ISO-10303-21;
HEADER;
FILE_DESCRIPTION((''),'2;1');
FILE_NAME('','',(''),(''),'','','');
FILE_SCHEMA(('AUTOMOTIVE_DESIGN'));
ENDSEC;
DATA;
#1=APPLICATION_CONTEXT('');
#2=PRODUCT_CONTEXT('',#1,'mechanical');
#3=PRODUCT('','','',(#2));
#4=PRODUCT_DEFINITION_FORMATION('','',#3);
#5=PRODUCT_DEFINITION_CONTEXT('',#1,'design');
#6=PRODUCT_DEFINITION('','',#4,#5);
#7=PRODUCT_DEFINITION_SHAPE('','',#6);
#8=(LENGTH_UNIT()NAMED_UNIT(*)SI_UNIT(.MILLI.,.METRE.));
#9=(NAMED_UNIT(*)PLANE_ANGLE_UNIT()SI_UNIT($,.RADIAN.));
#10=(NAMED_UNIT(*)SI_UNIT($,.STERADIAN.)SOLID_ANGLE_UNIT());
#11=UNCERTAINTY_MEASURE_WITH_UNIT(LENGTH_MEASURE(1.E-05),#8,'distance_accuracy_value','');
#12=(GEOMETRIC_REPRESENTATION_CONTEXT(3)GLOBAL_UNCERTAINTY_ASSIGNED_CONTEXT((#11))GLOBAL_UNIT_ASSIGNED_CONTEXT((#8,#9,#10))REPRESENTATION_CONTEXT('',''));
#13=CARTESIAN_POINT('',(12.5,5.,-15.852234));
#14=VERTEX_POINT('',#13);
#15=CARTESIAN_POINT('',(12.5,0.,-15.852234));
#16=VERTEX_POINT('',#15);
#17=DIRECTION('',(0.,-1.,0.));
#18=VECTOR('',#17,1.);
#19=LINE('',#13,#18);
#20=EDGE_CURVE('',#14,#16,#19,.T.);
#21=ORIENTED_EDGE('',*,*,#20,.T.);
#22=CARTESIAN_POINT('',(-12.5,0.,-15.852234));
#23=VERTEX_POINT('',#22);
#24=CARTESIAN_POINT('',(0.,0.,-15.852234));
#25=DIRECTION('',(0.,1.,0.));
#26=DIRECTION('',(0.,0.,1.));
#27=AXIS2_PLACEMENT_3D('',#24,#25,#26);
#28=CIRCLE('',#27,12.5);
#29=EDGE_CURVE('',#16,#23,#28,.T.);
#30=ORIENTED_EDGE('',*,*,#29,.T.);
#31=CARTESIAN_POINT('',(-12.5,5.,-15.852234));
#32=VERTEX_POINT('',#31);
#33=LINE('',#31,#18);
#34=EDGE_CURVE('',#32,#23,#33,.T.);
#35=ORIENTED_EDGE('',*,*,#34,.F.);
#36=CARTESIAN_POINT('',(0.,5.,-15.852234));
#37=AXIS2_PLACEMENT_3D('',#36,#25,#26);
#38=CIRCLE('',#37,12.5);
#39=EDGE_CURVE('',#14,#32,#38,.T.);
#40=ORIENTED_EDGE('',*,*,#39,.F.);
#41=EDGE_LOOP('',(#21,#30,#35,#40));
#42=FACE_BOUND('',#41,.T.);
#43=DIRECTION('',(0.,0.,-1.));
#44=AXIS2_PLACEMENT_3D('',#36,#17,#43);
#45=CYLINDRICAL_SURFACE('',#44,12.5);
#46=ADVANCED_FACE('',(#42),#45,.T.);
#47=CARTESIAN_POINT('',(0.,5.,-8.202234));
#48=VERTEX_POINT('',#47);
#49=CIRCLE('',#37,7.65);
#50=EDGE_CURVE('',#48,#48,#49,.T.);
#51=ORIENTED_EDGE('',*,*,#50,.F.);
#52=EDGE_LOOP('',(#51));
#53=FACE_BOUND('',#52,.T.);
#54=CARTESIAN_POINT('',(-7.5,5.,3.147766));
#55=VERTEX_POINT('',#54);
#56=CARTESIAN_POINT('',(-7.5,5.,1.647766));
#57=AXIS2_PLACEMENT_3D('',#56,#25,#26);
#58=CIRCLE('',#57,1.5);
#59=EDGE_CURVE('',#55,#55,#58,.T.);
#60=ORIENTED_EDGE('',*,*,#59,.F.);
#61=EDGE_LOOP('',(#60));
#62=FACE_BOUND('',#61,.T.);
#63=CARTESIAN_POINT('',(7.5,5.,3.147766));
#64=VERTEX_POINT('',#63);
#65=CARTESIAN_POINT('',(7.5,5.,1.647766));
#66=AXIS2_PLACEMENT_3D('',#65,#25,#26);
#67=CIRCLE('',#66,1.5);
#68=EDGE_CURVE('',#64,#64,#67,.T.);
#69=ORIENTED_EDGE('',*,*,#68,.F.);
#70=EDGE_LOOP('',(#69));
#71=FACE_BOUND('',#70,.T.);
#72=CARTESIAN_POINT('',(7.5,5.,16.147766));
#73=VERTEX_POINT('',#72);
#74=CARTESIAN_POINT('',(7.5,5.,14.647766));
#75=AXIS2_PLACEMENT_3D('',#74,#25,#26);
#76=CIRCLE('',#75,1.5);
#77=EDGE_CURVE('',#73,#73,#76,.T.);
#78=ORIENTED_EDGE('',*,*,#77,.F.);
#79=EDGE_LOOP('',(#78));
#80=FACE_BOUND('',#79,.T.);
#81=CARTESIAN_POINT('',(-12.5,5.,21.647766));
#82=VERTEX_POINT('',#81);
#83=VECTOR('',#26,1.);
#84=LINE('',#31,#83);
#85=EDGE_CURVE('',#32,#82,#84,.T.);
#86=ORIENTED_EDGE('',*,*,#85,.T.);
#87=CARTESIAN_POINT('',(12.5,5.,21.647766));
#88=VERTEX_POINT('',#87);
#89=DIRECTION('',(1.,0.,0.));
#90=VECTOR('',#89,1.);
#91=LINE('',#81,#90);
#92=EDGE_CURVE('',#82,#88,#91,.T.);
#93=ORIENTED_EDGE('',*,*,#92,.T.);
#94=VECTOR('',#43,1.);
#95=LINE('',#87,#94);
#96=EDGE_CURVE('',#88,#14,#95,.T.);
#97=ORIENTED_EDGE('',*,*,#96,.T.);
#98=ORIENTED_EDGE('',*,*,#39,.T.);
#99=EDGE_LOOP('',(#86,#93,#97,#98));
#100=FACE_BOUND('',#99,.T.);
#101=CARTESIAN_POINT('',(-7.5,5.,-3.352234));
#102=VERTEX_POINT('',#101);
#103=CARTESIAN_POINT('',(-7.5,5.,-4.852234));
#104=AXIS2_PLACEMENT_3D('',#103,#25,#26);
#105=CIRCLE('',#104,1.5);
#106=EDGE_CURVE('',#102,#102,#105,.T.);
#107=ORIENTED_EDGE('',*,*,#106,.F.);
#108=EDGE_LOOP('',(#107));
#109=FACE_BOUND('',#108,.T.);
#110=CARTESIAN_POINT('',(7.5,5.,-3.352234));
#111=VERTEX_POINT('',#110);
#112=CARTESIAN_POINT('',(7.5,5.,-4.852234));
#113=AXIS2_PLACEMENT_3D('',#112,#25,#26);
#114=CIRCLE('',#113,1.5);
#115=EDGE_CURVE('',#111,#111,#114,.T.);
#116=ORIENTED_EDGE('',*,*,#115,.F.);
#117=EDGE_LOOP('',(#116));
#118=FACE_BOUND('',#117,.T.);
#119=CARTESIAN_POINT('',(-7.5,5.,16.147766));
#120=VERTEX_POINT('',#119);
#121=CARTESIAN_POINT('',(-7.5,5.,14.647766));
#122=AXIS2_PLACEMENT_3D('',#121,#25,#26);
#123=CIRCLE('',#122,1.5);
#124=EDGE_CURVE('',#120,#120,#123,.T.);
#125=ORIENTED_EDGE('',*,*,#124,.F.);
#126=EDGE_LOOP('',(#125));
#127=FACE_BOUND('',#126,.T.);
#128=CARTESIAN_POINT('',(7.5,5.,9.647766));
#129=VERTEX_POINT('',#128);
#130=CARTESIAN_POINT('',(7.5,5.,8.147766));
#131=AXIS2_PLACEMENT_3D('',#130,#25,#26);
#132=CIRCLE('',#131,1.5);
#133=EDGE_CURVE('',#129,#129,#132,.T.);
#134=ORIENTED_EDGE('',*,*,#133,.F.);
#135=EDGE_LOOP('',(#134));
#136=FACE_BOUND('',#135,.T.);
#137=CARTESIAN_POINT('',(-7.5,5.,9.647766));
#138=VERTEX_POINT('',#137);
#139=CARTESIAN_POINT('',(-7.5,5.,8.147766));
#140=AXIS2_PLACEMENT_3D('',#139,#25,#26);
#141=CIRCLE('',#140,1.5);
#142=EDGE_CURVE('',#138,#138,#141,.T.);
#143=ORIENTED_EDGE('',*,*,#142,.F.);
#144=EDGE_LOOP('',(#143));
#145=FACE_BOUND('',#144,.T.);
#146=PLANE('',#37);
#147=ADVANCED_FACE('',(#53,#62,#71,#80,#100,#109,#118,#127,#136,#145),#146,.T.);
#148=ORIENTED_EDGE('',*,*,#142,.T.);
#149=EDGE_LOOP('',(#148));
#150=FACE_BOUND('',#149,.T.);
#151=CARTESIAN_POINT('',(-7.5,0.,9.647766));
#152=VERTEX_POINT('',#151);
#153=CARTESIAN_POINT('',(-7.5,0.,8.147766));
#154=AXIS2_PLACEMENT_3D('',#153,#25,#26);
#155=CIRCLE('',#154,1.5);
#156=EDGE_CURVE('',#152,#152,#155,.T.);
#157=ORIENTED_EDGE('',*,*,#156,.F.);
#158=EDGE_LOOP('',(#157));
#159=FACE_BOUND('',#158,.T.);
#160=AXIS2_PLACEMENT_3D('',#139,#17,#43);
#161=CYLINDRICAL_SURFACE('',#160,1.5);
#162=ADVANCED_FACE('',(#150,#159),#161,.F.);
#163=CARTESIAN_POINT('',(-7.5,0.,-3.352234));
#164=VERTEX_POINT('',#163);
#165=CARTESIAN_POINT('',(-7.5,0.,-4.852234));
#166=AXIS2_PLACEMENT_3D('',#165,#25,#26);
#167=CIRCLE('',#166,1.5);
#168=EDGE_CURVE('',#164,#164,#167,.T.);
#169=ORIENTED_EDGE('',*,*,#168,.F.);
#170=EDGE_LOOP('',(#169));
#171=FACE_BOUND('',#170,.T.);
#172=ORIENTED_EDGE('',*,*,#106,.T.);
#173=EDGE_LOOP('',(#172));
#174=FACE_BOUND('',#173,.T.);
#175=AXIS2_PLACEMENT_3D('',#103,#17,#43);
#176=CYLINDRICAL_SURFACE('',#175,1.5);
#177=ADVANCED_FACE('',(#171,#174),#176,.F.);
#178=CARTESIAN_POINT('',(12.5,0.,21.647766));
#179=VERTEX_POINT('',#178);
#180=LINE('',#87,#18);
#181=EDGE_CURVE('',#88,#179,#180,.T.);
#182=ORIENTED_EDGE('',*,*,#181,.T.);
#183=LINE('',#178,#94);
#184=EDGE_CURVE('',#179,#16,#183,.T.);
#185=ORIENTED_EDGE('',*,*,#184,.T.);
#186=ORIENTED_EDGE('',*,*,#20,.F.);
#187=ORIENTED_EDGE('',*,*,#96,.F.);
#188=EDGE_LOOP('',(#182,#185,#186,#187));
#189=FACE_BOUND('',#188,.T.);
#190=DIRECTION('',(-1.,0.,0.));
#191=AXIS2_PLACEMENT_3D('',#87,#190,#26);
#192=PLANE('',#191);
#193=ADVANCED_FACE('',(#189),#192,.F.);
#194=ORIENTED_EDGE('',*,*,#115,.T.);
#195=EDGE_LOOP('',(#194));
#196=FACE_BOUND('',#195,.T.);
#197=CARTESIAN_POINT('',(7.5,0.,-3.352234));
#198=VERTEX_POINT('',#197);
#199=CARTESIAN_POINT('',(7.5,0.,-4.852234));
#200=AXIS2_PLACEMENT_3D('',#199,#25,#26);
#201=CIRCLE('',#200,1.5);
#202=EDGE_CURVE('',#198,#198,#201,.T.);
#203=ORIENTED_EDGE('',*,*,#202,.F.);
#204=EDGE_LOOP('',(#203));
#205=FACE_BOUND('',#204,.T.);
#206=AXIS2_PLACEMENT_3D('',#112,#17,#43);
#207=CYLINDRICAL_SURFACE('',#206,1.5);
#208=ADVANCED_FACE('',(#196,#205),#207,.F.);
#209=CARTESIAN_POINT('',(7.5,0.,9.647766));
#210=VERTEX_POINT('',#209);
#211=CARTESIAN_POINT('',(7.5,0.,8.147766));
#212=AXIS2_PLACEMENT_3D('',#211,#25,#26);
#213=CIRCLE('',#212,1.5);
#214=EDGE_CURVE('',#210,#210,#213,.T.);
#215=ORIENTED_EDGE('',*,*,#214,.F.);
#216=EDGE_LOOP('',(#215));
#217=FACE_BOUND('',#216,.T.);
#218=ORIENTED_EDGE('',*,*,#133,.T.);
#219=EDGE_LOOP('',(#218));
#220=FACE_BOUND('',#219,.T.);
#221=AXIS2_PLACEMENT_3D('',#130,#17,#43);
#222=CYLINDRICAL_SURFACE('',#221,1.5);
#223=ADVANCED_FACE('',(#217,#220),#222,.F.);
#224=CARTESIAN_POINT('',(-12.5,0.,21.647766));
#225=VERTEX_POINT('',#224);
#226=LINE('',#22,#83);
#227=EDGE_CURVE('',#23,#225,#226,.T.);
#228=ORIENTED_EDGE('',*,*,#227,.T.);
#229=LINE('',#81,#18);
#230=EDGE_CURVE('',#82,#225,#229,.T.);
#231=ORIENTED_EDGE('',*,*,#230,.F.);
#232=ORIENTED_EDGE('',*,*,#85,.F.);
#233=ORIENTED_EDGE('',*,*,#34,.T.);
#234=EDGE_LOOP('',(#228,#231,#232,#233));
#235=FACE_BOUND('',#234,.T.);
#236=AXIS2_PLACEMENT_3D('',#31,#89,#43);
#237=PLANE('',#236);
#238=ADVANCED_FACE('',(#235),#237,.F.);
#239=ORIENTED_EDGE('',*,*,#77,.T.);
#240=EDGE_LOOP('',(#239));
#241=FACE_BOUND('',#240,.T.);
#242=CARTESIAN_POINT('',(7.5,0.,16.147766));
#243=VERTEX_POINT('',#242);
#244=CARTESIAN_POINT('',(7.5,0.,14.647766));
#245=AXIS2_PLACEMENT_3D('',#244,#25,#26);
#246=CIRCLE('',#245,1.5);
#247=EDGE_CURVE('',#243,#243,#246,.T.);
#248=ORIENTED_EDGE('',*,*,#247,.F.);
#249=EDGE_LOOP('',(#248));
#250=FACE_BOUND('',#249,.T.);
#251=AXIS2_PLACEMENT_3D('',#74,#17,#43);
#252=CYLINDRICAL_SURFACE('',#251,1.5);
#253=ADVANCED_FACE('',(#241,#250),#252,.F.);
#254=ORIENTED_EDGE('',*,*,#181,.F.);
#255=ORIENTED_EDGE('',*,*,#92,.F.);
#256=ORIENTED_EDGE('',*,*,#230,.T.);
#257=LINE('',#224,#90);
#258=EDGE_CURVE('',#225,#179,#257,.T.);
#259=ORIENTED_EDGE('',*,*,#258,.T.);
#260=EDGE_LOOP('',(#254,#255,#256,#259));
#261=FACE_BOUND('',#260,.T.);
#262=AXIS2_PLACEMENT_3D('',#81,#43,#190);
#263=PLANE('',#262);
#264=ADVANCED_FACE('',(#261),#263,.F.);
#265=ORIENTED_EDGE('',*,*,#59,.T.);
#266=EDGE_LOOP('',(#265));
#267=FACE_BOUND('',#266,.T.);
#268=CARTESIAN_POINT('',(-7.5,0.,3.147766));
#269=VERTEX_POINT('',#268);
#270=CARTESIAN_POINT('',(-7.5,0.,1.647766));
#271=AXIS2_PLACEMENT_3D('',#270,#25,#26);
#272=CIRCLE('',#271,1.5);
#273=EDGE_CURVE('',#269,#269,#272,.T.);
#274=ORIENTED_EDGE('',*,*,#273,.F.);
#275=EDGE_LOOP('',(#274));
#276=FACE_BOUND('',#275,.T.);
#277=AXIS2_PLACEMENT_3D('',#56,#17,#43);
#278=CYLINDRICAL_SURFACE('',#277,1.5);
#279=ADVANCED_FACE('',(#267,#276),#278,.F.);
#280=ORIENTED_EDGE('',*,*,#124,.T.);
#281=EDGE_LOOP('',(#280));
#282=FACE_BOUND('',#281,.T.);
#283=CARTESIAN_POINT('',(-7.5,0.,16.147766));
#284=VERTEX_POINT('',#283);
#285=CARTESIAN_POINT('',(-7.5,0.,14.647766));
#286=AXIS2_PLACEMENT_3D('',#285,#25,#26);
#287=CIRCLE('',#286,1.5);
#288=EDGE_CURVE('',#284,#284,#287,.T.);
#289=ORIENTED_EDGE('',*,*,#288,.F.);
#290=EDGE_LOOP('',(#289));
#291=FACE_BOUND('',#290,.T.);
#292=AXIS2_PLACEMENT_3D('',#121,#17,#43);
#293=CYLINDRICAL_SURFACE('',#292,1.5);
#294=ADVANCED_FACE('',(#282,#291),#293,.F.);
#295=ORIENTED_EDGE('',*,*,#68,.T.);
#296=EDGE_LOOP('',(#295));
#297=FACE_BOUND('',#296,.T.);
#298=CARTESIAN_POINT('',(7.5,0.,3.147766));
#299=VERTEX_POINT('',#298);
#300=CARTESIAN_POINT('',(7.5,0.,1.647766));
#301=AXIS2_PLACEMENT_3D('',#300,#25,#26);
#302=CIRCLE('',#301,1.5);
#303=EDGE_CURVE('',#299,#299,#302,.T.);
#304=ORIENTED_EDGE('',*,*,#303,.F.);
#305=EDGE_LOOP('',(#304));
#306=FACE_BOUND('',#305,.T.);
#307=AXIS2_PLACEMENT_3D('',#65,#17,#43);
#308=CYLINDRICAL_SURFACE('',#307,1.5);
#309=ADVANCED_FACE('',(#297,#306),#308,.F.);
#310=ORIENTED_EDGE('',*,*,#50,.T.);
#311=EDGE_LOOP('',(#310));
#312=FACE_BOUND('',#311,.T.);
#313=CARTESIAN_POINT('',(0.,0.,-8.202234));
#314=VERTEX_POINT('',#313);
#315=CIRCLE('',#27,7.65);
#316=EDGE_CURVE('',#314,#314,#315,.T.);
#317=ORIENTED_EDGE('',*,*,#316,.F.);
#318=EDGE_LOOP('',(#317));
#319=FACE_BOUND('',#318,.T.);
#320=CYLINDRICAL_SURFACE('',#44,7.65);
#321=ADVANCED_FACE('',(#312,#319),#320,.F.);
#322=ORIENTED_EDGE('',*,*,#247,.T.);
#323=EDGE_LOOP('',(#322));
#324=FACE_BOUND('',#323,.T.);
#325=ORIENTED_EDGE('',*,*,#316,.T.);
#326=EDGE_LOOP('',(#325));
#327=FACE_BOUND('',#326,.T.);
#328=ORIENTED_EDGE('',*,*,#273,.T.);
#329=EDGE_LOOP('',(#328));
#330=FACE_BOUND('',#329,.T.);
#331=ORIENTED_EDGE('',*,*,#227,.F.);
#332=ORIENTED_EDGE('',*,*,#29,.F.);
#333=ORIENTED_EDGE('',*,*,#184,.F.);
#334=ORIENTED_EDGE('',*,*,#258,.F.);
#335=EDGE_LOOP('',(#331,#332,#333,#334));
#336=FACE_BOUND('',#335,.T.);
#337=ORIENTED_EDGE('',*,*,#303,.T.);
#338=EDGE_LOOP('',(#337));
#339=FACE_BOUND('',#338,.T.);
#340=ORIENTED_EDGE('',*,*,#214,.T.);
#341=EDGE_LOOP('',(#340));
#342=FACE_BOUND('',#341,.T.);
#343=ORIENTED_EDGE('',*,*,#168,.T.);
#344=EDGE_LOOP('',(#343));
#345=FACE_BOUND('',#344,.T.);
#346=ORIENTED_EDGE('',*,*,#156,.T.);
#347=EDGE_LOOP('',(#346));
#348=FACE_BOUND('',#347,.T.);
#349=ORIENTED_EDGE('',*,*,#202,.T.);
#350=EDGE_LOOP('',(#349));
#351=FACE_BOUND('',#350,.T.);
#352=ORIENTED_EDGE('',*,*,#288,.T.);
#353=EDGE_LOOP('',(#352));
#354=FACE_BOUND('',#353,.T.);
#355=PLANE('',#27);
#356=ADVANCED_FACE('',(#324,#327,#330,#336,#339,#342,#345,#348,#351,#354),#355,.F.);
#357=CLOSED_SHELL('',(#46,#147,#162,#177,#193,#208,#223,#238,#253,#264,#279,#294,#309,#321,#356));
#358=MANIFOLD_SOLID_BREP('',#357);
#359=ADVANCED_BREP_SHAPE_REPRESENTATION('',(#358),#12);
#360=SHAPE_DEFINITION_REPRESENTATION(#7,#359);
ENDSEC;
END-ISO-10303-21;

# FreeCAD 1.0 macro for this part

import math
import FreeCAD as App
import Part
import Sketcher
Q = App.Units.Quantity

doc = App.newDocument("Part")
body = doc.addObject("PartDesign::Body", "Body")

sketch1 = body.newObject("Sketcher::SketchObject", "Sketch")
sketch1.AttachmentSupport = (doc.getObject("XZ_Plane"), [""])
sketch1.MapMode = "FlatFace"
sketch1.addGeometry([
    Part.LineSegment(App.Vector(-12.5, -15.9, 0), App.Vector(-12.5, 21.6, 0)),
    Part.LineSegment(App.Vector(-12.5, 21.6, 0), App.Vector(12.5, 21.6, 0)),
    Part.LineSegment(App.Vector(12.5, 21.6, 0), App.Vector(12.5, -15.9, 0)),
    Part.ArcOfCircle(Part.Circle(App.Vector(0, -15.9, 0), App.Vector(0, 0, 1), 12.5), math.radians(180), math.radians(360)),
    Part.Circle(App.Vector(-7.5, 14.6, 0), App.Vector(0, 0, 1), 1.5),
    Part.Circle(App.Vector(-7.5, 8.1, 0), App.Vector(0, 0, 1), 1.5),
    Part.Circle(App.Vector(-7.5, 1.6, 0), App.Vector(0, 0, 1), 1.5),
    Part.Circle(App.Vector(7.5, 14.6, 0), App.Vector(0, 0, 1), 1.5),
    Part.Circle(App.Vector(7.5, 8.1, 0), App.Vector(0, 0, 1), 1.5),
    Part.Circle(App.Vector(7.5, 1.6, 0), App.Vector(0, 0, 1), 1.5),
    Part.Circle(App.Vector(-7.5, -4.9, 0), App.Vector(0, 0, 1), 1.5),
    Part.Circle(App.Vector(7.5, -4.9, 0), App.Vector(0, 0, 1), 1.5),
    Part.Circle(App.Vector(0, -15.9, 0), App.Vector(0, 0, 1), 7.7),
], False)
sketch1.addConstraint([
    Sketcher.Constraint("Coincident", 0, 2, 1, 1),
    Sketcher.Constraint("Coincident", 1, 2, 2, 1),
    Sketcher.Constraint("Tangent", 2, 2, 3, 2),
    Sketcher.Constraint("Tangent", 3, 1, 0, 1),
    Sketcher.Constraint("Vertical", 0),
    Sketcher.Constraint("Horizontal", 1),
    Sketcher.Constraint("Vertical", 2),
    Sketcher.Constraint("Coincident", 12, 3, 3, 3),
    Sketcher.Constraint("Equal", 4, 5),
    Sketcher.Constraint("Equal", 5, 6),
    Sketcher.Constraint("Equal", 6, 7),
    Sketcher.Constraint("Equal", 7, 8),
    Sketcher.Constraint("Equal", 8, 9),
    Sketcher.Constraint("Equal", 9, 10),
    Sketcher.Constraint("Equal", 10, 11),
    Sketcher.Constraint("Symmetric", 4, 3, 7, 3, -2),
    Sketcher.Constraint("Symmetric", 5, 3, 8, 3, -2),
    Sketcher.Constraint("Symmetric", 6, 3, 9, 3, -2),
    Sketcher.Constraint("Symmetric", 10, 3, 11, 3, -2),
    Sketcher.Constraint("PointOnObject", 3, 3, -2),
    Sketcher.Constraint("Vertical", 4, 3, 5, 3),
    Sketcher.Constraint("Vertical", 5, 3, 6, 3),
    Sketcher.Constraint("Vertical", 6, 3, 10, 3),
    Sketcher.Constraint("Diameter", 4, Q("3 mm")),
    Sketcher.Constraint("Diameter", 12, Q("15.3 mm")),
    Sketcher.Constraint("Radius", 3, Q("12.5 mm")),
    Sketcher.Constraint("DistanceY", 0, 1, 0, 2, Q("37.5 mm")),
    Sketcher.Constraint("DistanceY", 3, 3, 5, 3, Q("24 mm")),
    Sketcher.Constraint("DistanceY", 6, 3, 4, 3, Q("13 mm")),
    Sketcher.Constraint("DistanceX", 4, 3, 7, 3, Q("15 mm")),
    Sketcher.Constraint("DistanceY", 10, 3, 5, 3, Q("13 mm")),
    Sketcher.Constraint("DistanceY", 4, 3, 0, 2, Q("7 mm")),
    Sketcher.Constraint("DistanceY", 3, 3, -1, 1, Q("15.852234 mm")),
])
pad1 = body.newObject("PartDesign::Pad", "Pad")
pad1.Profile = sketch1
pad1.Length = 5
pad1.Reversed = True

doc.recompute()
